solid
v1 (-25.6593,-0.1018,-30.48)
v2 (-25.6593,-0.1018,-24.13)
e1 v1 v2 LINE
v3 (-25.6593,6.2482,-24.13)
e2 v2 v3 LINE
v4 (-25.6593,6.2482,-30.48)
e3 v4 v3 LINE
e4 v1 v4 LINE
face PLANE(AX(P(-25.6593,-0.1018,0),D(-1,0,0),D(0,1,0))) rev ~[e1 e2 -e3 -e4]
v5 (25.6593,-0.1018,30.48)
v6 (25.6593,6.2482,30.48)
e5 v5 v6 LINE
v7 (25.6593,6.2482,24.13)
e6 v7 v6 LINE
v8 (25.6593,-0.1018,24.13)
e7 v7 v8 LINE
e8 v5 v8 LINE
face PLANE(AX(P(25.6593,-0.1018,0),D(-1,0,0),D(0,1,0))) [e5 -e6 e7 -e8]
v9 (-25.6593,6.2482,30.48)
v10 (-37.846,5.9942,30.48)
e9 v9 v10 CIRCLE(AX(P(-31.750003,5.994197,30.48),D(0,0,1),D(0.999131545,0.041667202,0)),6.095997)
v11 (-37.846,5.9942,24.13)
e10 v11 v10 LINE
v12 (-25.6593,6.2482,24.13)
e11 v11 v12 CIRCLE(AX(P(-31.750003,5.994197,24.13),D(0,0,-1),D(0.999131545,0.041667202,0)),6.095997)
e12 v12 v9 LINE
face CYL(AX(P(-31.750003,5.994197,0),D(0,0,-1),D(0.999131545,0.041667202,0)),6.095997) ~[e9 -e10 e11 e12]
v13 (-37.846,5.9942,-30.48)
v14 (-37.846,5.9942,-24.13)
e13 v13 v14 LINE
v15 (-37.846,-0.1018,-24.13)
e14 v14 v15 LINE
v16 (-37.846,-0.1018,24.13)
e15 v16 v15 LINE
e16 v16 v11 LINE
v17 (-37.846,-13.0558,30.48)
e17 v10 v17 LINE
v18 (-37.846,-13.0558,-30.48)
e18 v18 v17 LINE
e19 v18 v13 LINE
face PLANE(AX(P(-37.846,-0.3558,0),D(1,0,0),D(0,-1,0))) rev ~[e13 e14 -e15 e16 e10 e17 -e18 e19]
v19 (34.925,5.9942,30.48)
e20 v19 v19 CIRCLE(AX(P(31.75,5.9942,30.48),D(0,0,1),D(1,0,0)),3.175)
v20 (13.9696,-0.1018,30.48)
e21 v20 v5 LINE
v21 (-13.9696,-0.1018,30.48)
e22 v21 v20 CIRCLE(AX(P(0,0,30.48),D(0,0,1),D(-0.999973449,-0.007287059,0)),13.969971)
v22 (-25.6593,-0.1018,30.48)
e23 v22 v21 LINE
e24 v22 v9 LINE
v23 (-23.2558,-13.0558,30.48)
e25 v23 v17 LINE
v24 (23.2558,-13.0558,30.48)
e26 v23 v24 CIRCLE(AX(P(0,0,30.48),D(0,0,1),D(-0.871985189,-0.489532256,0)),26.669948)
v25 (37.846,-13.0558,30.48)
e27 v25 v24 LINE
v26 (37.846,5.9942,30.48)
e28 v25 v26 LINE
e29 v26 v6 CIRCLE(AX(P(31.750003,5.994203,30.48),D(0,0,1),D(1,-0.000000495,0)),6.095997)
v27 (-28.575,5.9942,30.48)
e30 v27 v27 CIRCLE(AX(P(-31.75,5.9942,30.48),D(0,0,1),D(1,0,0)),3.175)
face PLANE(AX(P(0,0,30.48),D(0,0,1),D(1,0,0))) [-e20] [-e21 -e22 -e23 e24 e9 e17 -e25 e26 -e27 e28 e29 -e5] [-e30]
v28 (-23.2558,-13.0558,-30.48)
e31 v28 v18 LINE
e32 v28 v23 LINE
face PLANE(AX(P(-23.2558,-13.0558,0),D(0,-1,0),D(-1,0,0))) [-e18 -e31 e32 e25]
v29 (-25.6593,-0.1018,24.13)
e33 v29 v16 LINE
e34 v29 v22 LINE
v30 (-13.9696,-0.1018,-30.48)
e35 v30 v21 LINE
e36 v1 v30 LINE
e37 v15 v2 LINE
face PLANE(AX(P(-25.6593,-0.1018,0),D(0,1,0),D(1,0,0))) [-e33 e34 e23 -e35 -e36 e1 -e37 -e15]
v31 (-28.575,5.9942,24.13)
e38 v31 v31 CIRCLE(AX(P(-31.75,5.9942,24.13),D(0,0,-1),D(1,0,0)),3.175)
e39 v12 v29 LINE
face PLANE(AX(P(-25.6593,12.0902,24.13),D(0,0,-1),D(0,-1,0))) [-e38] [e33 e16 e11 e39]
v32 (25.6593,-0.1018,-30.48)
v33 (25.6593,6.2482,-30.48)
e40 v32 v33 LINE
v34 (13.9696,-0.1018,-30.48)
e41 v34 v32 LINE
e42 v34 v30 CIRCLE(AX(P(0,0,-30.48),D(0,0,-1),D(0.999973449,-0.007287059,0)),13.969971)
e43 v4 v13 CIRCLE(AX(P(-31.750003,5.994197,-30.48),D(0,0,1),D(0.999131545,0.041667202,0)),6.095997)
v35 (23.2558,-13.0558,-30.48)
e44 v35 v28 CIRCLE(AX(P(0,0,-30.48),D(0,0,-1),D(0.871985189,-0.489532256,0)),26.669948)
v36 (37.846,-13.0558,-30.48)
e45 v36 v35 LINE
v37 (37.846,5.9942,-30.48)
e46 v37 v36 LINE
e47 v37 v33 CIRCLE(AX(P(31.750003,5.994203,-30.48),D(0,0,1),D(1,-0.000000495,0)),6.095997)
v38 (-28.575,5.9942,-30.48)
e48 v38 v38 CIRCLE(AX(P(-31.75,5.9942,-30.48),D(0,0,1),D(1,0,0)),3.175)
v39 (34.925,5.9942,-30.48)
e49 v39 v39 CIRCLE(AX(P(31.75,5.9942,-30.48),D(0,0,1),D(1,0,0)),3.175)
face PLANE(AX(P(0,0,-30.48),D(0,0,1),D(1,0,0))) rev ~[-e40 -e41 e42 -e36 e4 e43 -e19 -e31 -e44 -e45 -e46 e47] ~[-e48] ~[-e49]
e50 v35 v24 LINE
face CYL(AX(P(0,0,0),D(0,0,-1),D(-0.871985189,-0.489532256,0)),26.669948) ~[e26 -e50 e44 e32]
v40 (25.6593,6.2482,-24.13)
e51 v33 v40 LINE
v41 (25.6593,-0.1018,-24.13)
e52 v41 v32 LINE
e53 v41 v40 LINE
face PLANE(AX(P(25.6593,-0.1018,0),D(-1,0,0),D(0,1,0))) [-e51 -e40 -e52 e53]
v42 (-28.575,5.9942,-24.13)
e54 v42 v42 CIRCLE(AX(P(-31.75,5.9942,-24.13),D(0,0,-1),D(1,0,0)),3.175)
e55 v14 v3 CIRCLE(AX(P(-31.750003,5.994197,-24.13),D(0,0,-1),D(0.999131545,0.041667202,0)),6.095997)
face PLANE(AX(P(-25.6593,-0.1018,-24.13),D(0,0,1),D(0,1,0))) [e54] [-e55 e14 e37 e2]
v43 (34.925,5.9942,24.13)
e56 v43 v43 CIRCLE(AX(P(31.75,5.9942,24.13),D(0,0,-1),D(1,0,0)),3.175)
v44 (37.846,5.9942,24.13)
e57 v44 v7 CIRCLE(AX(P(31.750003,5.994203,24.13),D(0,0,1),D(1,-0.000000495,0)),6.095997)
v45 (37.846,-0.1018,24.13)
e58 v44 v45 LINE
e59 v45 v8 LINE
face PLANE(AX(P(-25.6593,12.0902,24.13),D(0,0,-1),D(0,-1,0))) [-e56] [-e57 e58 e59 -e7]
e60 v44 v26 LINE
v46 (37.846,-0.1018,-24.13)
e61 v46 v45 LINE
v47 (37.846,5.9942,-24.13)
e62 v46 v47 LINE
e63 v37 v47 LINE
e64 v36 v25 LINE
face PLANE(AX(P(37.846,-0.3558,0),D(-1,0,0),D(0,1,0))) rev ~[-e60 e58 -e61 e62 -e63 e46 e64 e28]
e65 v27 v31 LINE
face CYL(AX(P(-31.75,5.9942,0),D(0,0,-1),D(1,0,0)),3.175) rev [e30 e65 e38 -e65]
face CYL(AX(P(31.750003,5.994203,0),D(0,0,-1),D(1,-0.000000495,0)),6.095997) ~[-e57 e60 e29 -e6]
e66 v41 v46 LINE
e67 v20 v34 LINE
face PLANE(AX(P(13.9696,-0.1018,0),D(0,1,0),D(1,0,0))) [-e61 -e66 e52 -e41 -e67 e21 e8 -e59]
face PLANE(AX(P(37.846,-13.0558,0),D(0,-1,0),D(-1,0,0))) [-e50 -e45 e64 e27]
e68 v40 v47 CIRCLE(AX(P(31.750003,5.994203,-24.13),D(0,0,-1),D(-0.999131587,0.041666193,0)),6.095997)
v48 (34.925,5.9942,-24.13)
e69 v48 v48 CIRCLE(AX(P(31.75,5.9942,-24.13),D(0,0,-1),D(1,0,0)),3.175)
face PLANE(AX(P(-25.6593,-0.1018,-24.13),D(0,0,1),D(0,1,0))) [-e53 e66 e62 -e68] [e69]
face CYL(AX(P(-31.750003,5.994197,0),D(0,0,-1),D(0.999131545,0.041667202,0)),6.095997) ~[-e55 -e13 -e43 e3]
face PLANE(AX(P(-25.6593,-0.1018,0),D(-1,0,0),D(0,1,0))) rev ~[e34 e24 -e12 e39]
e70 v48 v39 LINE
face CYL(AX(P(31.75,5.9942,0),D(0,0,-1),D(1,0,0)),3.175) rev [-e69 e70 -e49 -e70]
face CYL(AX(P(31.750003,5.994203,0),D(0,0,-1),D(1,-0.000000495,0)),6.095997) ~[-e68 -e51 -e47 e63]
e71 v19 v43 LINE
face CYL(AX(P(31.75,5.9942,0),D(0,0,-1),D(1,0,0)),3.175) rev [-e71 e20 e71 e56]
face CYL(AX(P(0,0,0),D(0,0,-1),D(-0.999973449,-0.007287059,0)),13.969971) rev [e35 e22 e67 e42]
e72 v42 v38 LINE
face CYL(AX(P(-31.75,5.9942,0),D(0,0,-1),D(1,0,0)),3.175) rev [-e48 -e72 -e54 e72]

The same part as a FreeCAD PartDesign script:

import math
import FreeCAD as App
import Part
import Sketcher
from FreeCAD import Vector
Q = App.Units.Quantity


def add_polygon(sketch, points):
    """Adds a closed chain of lines whose ends are joined by coincident constraints."""
    first, n = sketch.GeometryCount, len(points)
    for a, b in zip(points, points[1:] + points[:1]):
        sketch.addGeometry(Part.LineSegment(App.Vector(*a, 0), App.Vector(*b, 0)), False)
    for i in range(n):
        sketch.addConstraint(Sketcher.Constraint("Coincident", first + i, 2, first + (i + 1) % n, 1))

doc = App.newDocument("Part")
body = doc.addObject("PartDesign::Body", "Body")

sketch1 = doc.addObject("Sketcher::SketchObject", "Sketch")
body.addObject(sketch1)
sketch1.AttachmentSupport = (doc.XY_Plane, [""])
sketch1.MapMode = "FlatFace"
sketch1.addGeometry(Part.LineSegment(Vector(-13.9696, -0.1018, 0), Vector(-25.6593, -0.1018, 0)), False)
sketch1.addGeometry(Part.LineSegment(Vector(-25.6593, -0.1018, 0), Vector(-25.6593, 6.2482, 0)), False)
sketch1.addGeometry(Part.ArcOfCircle(Part.Circle(Vector(-31.75, 5.9942, 0), Vector(0, 0, 1), 6.095994), math.radians(2.388018), math.radians(180)), False)
sketch1.addGeometry(Part.LineSegment(Vector(-37.846, 5.9942, 0), Vector(-37.846, -13.0558, 0)), False)
sketch1.addGeometry(Part.LineSegment(Vector(-37.846, -13.0558, 0), Vector(-23.2558, -13.0558, 0)), False)
sketch1.addGeometry(Part.ArcOfCircle(Part.Circle(Vector(0, 0, 0), Vector(0, 0, 1), 26.669948), math.radians(-150.690157), math.radians(-29.309843)), False)
sketch1.addGeometry(Part.LineSegment(Vector(23.2558, -13.0558, 0), Vector(37.846, -13.0558, 0)), False)
sketch1.addGeometry(Part.LineSegment(Vector(37.846, -13.0558, 0), Vector(37.846, 5.9942, 0)), False)
sketch1.addGeometry(Part.ArcOfCircle(Part.Circle(Vector(31.75, 5.9942, 0), Vector(0, 0, 1), 6.096), math.radians(0), math.radians(177.611982)), False)
sketch1.addGeometry(Part.LineSegment(Vector(25.6593, 6.2482, 0), Vector(25.6593, -0.1018, 0)), False)
sketch1.addGeometry(Part.LineSegment(Vector(25.6593, -0.1018, 0), Vector(13.9696, -0.1018, 0)), False)
sketch1.addGeometry(Part.ArcOfCircle(Part.Circle(Vector(0, 0, 0), Vector(0, 0, 1), 13.969971), math.radians(-179.582479), math.radians(-0.417521)), False)
sketch1.addGeometry(Part.Circle(Vector(-31.75, 5.9942, 0), Vector(0, 0, 1), 3.175), False)
sketch1.addGeometry(Part.Circle(Vector(31.75, 5.9942, 0), Vector(0, 0, 1), 3.175), False)
sketch1.addConstraint(Sketcher.Constraint("Coincident", 0, 2, 1, 1))
sketch1.addConstraint(Sketcher.Constraint("Coincident", 1, 2, 2, 1))
sketch1.addConstraint(Sketcher.Constraint("Tangent", 2, 2, 3, 1))
sketch1.addConstraint(Sketcher.Constraint("Coincident", 3, 2, 4, 1))
sketch1.addConstraint(Sketcher.Constraint("Coincident", 4, 2, 5, 1))
sketch1.addConstraint(Sketcher.Constraint("Coincident", 5, 2, 6, 1))
sketch1.addConstraint(Sketcher.Constraint("Coincident", 6, 2, 7, 1))
sketch1.addConstraint(Sketcher.Constraint("Tangent", 7, 2, 8, 1))
sketch1.addConstraint(Sketcher.Constraint("Coincident", 8, 2, 9, 1))
sketch1.addConstraint(Sketcher.Constraint("Coincident", 9, 2, 10, 1))
sketch1.addConstraint(Sketcher.Constraint("Coincident", 10, 2, 11, 2))
sketch1.addConstraint(Sketcher.Constraint("Coincident", 11, 1, 0, 1))
sketch1.addConstraint(Sketcher.Constraint("Horizontal", 0))
sketch1.addConstraint(Sketcher.Constraint("Vertical", 1))
sketch1.addConstraint(Sketcher.Constraint("Vertical", 3))
sketch1.addConstraint(Sketcher.Constraint("Horizontal", 4))
sketch1.addConstraint(Sketcher.Constraint("Horizontal", 6))
sketch1.addConstraint(Sketcher.Constraint("Vertical", 7))
sketch1.addConstraint(Sketcher.Constraint("Vertical", 9))
sketch1.addConstraint(Sketcher.Constraint("Horizontal", 10))
sketch1.addConstraint(Sketcher.Constraint("Coincident", 5, 3, -1, 1))
sketch1.addConstraint(Sketcher.Constraint("Coincident", 11, 3, -1, 1))
sketch1.addConstraint(Sketcher.Constraint("Coincident", 12, 3, 2, 3))
sketch1.addConstraint(Sketcher.Constraint("Coincident", 13, 3, 8, 3))
sketch1.addConstraint(Sketcher.Constraint("Equal", 2, 8))
sketch1.addConstraint(Sketcher.Constraint("Equal", 12, 13))
sketch1.addConstraint(Sketcher.Constraint("Symmetric", 2, 3, 8, 3, -2))
sketch1.addConstraint(Sketcher.Constraint("Symmetric", 0, 2, 9, 2, -2))
sketch1.addConstraint(Sketcher.Constraint("Horizontal", 4, 2, 5, 2))
sketch1.addConstraint(Sketcher.Constraint("Diameter", 12, Q("0.25 in")))
sketch1.addConstraint(Sketcher.Constraint("Radius", 2, Q("0.24 in")))
sketch1.addConstraint(Sketcher.Constraint("Radius", 11, Q("0.55 in")))
sketch1.addConstraint(Sketcher.Constraint("DistanceY", 1, 1, 1, 2, Q("0.25 in")))
sketch1.addConstraint(Sketcher.Constraint("DistanceX", 2, 3, 8, 3, Q("2.5 in")))
sketch1.addConstraint(Sketcher.Constraint("Radius", 5, Q("1.05 in")))
sketch1.addConstraint(Sketcher.Constraint("DistanceX", 4, 1, 4, 2, 14.5902))
sketch1.addConstraint(Sketcher.Constraint("DistanceY", 3, 2, 3, 1, Q("0.75 in")))
sketch1.addConstraint(Sketcher.Constraint("DistanceY", 0, 2, 2, 3, Q("0.24 in")))
pad1 = doc.addObject("PartDesign::Pad", "Pad")
body.addObject(pad1)
pad1.Profile = sketch1
pad1.Length = Q("2.4 in")
pad1.Midplane = True

sketch2 = doc.addObject("Sketcher::SketchObject", "Sketch001")
body.addObject(sketch2)
sketch2.AttachmentSupport = (doc.YZ_Plane, [""])
sketch2.MapMode = "FlatFace"
sketch2.AttachmentOffset = App.Placement(Vector(0, 0, -1.0102087 * 25.4), App.Rotation())
add_polygon(sketch2, [(-0.1018, 24.13), (-0.1018, -24.13), (12.0902, -24.13), (12.0902, 24.13)])
sketch2.addConstraint(Sketcher.Constraint("Vertical", 0))
sketch2.addConstraint(Sketcher.Constraint("Horizontal", 1))
sketch2.addConstraint(Sketcher.Constraint("Vertical", 2))
sketch2.addConstraint(Sketcher.Constraint("Horizontal", 3))
sketch2.addConstraint(Sketcher.Constraint("DistanceY", 0, 2, 0, 1, Q("1.9 in")))
sketch2.addConstraint(Sketcher.Constraint("DistanceX", 1, 1, 1, 2, Q("0.48 in")))
sketch2.addConstraint(Sketcher.Constraint("DistanceY", 0, 2, -1, 1, Q("0.95 in")))
sketch2.addConstraint(Sketcher.Constraint("DistanceX", 0, 2, -1, 1, Q("0.004 in")))
pocket1 = doc.addObject("PartDesign::Pocket", "Pocket")
body.addObject(pocket1)
pocket1.Profile = sketch2
pocket1.Length = Q("6 in")
pocket1.Midplane = True

doc.recompute()
